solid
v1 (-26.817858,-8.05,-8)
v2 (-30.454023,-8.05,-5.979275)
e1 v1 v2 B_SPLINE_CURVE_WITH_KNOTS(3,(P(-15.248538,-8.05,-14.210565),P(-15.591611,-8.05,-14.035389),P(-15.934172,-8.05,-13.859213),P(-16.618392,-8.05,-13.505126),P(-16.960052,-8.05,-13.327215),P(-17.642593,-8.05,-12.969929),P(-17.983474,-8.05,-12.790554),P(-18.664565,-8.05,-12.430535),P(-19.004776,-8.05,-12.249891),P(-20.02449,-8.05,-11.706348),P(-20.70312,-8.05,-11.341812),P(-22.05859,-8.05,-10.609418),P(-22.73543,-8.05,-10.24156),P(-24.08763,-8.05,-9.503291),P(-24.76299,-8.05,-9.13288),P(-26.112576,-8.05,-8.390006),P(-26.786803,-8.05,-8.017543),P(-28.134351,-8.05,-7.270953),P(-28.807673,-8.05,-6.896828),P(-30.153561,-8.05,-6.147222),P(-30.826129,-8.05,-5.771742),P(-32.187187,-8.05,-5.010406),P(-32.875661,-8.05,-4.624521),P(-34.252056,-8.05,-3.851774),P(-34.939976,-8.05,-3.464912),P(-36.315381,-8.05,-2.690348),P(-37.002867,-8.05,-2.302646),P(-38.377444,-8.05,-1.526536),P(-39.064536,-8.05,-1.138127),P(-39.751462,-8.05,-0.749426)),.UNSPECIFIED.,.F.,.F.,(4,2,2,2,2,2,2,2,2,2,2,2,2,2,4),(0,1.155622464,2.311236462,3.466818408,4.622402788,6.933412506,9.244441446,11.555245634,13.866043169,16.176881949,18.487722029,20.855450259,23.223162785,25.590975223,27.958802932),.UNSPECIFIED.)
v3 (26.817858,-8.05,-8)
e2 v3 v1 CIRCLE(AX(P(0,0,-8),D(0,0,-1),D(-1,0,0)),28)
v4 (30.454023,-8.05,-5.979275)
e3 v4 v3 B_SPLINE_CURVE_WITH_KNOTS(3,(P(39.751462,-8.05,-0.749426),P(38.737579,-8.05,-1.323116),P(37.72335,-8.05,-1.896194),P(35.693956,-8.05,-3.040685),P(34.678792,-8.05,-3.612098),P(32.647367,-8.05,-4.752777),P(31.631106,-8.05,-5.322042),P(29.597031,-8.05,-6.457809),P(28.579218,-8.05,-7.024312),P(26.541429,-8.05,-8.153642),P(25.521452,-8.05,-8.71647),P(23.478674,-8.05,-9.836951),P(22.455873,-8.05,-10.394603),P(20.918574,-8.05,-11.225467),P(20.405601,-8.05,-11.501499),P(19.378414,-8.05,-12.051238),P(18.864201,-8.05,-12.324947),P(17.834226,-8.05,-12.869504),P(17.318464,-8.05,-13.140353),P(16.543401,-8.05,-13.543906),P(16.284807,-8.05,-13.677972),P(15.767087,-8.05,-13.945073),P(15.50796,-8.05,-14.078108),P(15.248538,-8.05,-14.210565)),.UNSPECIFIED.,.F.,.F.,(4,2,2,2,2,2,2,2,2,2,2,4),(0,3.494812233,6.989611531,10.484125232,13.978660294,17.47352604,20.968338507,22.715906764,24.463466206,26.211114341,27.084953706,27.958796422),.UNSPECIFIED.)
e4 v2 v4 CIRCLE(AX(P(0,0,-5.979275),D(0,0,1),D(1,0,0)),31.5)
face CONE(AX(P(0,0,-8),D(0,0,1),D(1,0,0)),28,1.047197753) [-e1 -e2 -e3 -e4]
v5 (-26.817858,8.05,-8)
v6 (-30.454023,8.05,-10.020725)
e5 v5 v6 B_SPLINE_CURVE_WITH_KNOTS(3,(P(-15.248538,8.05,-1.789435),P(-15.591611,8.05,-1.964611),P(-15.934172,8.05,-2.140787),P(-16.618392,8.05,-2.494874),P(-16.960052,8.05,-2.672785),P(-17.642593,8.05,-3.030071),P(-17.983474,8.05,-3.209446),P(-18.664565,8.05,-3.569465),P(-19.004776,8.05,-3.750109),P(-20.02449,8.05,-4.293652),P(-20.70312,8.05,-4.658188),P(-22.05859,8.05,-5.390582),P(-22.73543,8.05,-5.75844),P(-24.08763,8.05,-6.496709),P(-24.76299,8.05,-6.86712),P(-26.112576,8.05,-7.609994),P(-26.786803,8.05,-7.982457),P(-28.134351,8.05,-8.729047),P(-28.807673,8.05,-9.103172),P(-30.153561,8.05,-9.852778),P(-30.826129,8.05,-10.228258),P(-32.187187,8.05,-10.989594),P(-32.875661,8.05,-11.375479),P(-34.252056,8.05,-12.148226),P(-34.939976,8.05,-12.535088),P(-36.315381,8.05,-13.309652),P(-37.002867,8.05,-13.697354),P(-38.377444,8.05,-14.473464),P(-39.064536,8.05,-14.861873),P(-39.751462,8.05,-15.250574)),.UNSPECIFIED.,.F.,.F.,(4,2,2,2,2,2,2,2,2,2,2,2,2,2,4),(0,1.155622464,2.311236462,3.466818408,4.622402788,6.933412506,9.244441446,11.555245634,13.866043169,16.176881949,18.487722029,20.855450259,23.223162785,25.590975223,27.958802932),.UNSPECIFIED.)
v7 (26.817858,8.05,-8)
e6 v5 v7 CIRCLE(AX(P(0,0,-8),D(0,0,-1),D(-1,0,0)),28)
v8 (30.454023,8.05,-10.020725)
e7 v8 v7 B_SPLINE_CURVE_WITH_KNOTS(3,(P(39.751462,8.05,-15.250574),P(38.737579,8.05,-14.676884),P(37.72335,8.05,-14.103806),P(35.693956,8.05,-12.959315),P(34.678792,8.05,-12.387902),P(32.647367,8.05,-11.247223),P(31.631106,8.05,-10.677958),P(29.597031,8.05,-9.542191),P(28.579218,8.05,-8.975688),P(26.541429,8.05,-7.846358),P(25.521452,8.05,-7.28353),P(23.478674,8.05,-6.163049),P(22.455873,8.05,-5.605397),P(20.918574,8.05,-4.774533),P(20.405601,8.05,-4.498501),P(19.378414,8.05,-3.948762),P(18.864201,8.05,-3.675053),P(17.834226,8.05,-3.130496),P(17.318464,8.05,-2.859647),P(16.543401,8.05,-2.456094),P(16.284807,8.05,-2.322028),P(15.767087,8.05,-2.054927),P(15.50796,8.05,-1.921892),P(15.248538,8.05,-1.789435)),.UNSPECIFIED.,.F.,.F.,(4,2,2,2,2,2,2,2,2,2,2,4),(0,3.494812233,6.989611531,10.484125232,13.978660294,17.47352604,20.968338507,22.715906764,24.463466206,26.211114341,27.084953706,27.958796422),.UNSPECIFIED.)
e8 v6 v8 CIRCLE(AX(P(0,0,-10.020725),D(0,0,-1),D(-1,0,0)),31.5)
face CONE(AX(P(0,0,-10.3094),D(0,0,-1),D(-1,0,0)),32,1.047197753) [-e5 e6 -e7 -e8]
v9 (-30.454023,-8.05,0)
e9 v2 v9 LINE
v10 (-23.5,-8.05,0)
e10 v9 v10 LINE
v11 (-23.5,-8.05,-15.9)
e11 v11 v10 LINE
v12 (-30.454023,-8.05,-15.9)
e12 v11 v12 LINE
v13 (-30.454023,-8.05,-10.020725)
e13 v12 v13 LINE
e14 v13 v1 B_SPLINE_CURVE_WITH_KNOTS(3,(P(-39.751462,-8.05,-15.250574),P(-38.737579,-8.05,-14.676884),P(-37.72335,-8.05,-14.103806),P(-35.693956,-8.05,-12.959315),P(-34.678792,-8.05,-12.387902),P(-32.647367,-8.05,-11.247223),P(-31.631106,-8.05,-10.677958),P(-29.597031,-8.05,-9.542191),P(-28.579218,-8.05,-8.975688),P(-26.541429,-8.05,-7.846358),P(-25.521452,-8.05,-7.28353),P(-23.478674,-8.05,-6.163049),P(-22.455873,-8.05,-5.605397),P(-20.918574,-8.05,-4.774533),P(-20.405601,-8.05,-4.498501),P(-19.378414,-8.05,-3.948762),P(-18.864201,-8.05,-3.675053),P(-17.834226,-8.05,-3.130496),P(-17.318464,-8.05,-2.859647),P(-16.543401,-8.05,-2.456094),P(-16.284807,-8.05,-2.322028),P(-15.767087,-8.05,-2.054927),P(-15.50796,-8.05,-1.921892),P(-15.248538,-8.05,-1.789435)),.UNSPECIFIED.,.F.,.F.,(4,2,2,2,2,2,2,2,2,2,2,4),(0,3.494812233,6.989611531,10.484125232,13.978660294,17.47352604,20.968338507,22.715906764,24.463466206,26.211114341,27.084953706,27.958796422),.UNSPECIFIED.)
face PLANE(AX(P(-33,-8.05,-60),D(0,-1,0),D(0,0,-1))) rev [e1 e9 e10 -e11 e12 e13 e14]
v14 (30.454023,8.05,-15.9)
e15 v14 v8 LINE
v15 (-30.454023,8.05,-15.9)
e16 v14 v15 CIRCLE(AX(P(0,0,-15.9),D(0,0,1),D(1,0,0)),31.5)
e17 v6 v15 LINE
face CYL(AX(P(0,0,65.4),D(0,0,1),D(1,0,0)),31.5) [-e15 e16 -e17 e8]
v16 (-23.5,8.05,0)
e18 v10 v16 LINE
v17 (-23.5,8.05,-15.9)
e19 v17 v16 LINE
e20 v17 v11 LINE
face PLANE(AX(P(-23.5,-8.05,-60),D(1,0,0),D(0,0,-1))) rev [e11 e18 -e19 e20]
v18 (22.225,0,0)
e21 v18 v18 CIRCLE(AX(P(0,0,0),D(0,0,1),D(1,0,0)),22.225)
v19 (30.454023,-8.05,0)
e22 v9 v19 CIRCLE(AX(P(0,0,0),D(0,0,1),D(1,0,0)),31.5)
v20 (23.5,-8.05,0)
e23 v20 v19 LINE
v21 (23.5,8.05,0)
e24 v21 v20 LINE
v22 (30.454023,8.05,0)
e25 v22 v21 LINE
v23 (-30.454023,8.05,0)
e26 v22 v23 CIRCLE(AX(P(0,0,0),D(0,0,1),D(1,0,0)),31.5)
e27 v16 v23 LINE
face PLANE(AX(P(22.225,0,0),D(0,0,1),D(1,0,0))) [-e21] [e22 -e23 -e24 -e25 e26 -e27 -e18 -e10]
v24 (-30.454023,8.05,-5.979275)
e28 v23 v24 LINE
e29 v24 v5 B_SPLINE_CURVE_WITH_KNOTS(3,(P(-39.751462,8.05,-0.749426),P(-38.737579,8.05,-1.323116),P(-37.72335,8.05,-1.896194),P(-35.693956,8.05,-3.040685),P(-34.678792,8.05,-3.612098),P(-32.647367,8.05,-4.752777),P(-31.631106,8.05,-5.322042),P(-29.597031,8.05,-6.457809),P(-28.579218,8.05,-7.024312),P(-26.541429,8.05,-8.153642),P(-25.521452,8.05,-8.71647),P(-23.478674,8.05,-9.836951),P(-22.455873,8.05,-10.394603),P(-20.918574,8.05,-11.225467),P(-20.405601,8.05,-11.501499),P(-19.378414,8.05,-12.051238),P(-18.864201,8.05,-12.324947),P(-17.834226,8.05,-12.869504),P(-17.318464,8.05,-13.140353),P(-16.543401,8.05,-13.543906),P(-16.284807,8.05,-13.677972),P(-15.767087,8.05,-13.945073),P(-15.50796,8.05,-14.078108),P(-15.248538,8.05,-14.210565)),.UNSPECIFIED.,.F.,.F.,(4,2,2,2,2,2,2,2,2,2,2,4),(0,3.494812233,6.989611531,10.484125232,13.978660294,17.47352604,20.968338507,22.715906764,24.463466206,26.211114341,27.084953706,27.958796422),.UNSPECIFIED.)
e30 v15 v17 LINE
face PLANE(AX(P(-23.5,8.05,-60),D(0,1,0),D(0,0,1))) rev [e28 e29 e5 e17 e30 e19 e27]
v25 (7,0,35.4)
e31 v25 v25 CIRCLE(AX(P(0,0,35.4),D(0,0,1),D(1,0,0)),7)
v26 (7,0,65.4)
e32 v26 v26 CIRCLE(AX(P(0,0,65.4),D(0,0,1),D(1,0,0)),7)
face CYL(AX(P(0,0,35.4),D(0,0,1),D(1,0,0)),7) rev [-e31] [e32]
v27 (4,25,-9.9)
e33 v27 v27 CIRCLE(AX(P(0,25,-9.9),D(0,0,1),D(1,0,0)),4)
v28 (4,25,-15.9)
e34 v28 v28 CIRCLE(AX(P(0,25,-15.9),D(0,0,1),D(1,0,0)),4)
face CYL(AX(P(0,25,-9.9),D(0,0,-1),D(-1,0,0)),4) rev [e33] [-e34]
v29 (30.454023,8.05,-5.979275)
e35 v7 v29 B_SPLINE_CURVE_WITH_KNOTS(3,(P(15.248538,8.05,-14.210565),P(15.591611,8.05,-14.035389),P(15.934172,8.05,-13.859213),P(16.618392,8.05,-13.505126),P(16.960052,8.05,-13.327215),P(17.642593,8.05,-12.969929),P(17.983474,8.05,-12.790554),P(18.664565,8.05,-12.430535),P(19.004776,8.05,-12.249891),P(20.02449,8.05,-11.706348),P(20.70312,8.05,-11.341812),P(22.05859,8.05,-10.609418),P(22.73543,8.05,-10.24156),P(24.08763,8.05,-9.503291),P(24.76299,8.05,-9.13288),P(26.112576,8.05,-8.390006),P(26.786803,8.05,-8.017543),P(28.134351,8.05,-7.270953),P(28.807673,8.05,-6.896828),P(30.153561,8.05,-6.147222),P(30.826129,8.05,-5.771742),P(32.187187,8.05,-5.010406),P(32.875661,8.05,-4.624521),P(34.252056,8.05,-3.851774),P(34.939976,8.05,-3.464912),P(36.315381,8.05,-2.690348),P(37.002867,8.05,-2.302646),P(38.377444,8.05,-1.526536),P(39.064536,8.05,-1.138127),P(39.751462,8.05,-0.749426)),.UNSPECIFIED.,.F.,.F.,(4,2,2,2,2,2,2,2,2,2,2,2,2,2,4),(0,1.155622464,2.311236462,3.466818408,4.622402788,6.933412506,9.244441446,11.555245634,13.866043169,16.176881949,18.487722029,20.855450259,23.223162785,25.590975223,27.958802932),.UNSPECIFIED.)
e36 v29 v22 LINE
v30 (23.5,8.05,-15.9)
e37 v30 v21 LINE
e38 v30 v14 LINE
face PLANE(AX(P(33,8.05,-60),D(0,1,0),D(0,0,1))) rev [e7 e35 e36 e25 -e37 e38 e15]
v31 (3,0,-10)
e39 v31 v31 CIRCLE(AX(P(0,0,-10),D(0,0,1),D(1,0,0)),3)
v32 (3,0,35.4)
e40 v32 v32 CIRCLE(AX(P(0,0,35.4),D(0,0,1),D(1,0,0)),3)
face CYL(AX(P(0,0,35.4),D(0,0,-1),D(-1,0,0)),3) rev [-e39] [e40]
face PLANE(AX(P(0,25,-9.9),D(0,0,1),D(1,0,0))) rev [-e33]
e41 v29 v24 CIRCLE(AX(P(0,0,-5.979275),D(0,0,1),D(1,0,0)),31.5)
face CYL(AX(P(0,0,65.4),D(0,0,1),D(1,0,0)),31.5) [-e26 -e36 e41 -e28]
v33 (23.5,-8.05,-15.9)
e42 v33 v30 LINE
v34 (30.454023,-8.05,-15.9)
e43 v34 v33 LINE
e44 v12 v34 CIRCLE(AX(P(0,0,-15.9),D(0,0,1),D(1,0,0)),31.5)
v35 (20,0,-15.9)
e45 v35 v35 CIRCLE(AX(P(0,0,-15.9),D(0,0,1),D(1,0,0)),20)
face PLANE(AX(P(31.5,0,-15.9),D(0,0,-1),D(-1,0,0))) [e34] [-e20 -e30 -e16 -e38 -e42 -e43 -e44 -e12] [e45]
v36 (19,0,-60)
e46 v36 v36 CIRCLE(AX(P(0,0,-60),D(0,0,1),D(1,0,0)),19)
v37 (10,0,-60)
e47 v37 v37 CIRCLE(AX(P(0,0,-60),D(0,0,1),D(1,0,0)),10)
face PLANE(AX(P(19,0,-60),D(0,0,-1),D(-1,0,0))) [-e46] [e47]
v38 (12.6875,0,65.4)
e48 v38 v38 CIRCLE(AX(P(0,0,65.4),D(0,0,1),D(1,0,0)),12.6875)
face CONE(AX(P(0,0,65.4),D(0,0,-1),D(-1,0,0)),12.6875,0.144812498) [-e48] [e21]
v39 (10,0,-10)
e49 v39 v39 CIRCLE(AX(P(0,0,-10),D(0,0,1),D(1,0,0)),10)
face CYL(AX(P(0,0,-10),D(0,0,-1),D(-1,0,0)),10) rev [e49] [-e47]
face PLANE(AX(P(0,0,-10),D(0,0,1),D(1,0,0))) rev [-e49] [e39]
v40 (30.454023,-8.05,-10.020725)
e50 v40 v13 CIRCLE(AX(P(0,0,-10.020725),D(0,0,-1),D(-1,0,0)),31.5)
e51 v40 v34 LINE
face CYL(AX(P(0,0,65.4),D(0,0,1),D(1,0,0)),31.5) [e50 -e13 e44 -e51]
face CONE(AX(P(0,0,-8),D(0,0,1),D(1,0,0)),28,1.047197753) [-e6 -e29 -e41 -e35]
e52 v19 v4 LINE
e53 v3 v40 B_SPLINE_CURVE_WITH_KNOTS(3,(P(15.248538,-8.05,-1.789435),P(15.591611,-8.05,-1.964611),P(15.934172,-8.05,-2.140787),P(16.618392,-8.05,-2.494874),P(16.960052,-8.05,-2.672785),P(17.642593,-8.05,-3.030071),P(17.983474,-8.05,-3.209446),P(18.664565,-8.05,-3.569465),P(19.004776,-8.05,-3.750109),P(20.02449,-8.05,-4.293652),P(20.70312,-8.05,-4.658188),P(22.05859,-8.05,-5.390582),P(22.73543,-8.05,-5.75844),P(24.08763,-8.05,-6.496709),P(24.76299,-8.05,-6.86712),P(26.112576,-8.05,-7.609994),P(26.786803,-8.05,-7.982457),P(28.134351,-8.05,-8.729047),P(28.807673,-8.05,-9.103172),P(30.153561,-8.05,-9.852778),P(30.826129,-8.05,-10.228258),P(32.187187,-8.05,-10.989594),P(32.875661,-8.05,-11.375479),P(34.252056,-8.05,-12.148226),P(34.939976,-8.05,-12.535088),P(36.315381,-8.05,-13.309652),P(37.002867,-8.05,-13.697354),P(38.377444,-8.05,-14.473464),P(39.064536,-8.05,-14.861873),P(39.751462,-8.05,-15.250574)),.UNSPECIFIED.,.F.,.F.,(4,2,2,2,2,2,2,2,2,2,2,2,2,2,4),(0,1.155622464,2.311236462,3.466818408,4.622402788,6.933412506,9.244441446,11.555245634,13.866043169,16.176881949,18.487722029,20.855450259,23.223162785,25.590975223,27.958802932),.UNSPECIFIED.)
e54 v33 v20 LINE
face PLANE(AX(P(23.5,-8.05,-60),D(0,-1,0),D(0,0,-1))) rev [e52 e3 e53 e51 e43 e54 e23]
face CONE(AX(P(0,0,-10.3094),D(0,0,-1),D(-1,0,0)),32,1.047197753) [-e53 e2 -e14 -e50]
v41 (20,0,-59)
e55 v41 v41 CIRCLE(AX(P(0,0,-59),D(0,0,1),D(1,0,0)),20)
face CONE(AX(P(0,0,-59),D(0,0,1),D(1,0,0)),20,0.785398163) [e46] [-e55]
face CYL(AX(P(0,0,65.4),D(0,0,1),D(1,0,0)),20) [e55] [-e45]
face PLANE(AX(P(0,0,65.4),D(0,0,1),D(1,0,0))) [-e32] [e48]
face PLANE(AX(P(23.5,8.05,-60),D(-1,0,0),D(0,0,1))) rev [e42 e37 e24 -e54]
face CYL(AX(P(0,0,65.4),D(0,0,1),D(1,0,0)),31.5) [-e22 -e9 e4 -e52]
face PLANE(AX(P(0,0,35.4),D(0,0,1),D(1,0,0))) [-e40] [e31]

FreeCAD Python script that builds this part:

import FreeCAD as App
import Part
import Sketcher

V = App.Vector
Q = App.Units.Quantity

doc = App.newDocument("Part")
body = doc.addObject("PartDesign::Body", "Body")

# Sketch on XZ plane
sketch1 = body.newObject("Sketcher::SketchObject", "Sketch")
sketch1.AttachmentSupport = (doc.getObject("XZ_Plane"), [""])
sketch1.MapMode = "FlatFace"
sketch1.addGeometry([
    Part.LineSegment(V(0, 65.4, 0), V(12.7, 65.4, 0)),  # 0
    Part.LineSegment(V(12.7, 65.4, 0), V(22.2, 0, 0)),  # 1
    Part.LineSegment(V(22.2, 0, 0), V(31.5, 0, 0)),  # 2
    Part.LineSegment(V(31.5, 0, 0), V(31.5, -15.9, 0)),  # 3
    Part.LineSegment(V(31.5, -15.9, 0), V(20, -15.9, 0)),  # 4
    Part.LineSegment(V(20, -15.9, 0), V(20, -59, 0)),  # 5
    Part.LineSegment(V(20, -59, 0), V(19, -60, 0)),  # 6
    Part.LineSegment(V(19, -60, 0), V(0, -60, 0)),  # 7
    Part.LineSegment(V(0, -60, 0), V(0, 65.4, 0)),  # 8
], False)
sketch1.addConstraint([
    Sketcher.Constraint("Coincident", 0, 2, 1, 1),
    Sketcher.Constraint("Coincident", 1, 2, 2, 1),
    Sketcher.Constraint("Coincident", 2, 2, 3, 1),
    Sketcher.Constraint("Coincident", 3, 2, 4, 1),
    Sketcher.Constraint("Coincident", 4, 2, 5, 1),
    Sketcher.Constraint("Coincident", 5, 2, 6, 1),
    Sketcher.Constraint("Coincident", 6, 2, 7, 1),
    Sketcher.Constraint("Coincident", 7, 2, 8, 1),
    Sketcher.Constraint("Coincident", 8, 2, 0, 1),
    Sketcher.Constraint("Horizontal", 0),
    Sketcher.Constraint("Horizontal", 2),
    Sketcher.Constraint("Vertical", 3),
    Sketcher.Constraint("Horizontal", 4),
    Sketcher.Constraint("Vertical", 5),
    Sketcher.Constraint("Horizontal", 7),
    Sketcher.Constraint("Vertical", 8),
    Sketcher.Constraint("PointOnObject", 1, 2, -1),
    Sketcher.Constraint("PointOnObject", 7, 2, -2),
    Sketcher.Constraint("DistanceX", 7, 2, 7, 1, 19.0),
    Sketcher.Constraint("Angle", 6, Q("-135 deg")),
    Sketcher.Constraint("DistanceX", 4, 2, 4, 1, 11.5),
    Sketcher.Constraint("DistanceY", 3, 2, 3, 1, 15.9),
    Sketcher.Constraint("DistanceY", 5, 2, 5, 1, 43.1),
    Sketcher.Constraint("DistanceY", 8, 1, 8, 2, 125.4),
    Sketcher.Constraint("DistanceX", -1, 1, 4, 2, 20.0),
    Sketcher.Constraint("DistanceX", 2, 1, 2, 2, 9.275),
    Sketcher.Constraint("DistanceX", 0, 1, 0, 2, 12.6875),
])
revolution = body.newObject("PartDesign::Revolution", "Revolution")
revolution.Profile = sketch1
revolution.ReferenceAxis = (sketch1, ["V_Axis"])
revolution.Angle = 360

# Sketch on XZ plane
sketch2 = body.newObject("Sketcher::SketchObject", "Sketch001")
sketch2.AttachmentSupport = (doc.getObject("XZ_Plane"), [""])
sketch2.MapMode = "FlatFace"
sketch2.addGeometry([
    Part.LineSegment(V(28, -8, 0), V(32, -5.7, 0)),
    Part.LineSegment(V(32, -5.7, 0), V(32, -10.3, 0)),
    Part.LineSegment(V(32, -10.3, 0), V(28, -8, 0)),
], False)
sketch2.addConstraint([
    Sketcher.Constraint("Coincident", 0, 2, 1, 1),
    Sketcher.Constraint("Coincident", 1, 2, 2, 1),
    Sketcher.Constraint("Coincident", 2, 2, 0, 1),
    Sketcher.Constraint("Vertical", 1),
    Sketcher.Constraint("Equal", 0, 2),
    Sketcher.Constraint("Angle", 0, Q("29.999988 deg")),
    Sketcher.Constraint("DistanceX", -1, 1, 0, 2, 32.0),
    Sketcher.Constraint("DistanceX", -1, 1, 2, 2, 28.0),
    Sketcher.Constraint("DistanceY", 2, 2, -1, 1, 8.0),
])
groove = body.newObject("PartDesign::Groove", "Groove")
groove.Profile = sketch2
groove.ReferenceAxis = (sketch2, ["V_Axis"])
groove.Angle = 360

# Sketch on XY plane
sketch3 = body.newObject("Sketcher::SketchObject", "Sketch002")
sketch3.AttachmentSupport = (doc.getObject("XY_Plane"), [""])
sketch3.MapMode = "FlatFace"
sketch3.addGeometry([
    Part.LineSegment(V(24, 8, 0), V(24, -8, 0)),  # 0
    Part.LineSegment(V(24, -8, 0), V(33, -8, 0)),  # 1
    Part.LineSegment(V(33, -8, 0), V(33, 8, 0)),  # 2
    Part.LineSegment(V(33, 8, 0), V(24, 8, 0)),  # 3
    Part.LineSegment(V(-33, 8, 0), V(-33, -8, 0)),  # 4
    Part.LineSegment(V(-33, -8, 0), V(-24, -8, 0)),  # 5
    Part.LineSegment(V(-24, -8, 0), V(-24, 8, 0)),  # 6
    Part.LineSegment(V(-24, 8, 0), V(-33, 8, 0)),  # 7
], False)
sketch3.addConstraint([
    Sketcher.Constraint("Coincident", 0, 2, 1, 1),
    Sketcher.Constraint("Coincident", 1, 2, 2, 1),
    Sketcher.Constraint("Coincident", 2, 2, 3, 1),
    Sketcher.Constraint("Coincident", 3, 2, 0, 1),
    Sketcher.Constraint("Coincident", 4, 2, 5, 1),
    Sketcher.Constraint("Coincident", 5, 2, 6, 1),
    Sketcher.Constraint("Coincident", 6, 2, 7, 1),
    Sketcher.Constraint("Coincident", 7, 2, 4, 1),
    Sketcher.Constraint("Vertical", 0),
    Sketcher.Constraint("Horizontal", 1),
    Sketcher.Constraint("Vertical", 2),
    Sketcher.Constraint("Horizontal", 3),
    Sketcher.Constraint("Vertical", 4),
    Sketcher.Constraint("Horizontal", 5),
    Sketcher.Constraint("Vertical", 6),
    Sketcher.Constraint("Horizontal", 7),
    Sketcher.Constraint("Symmetric", 2, 2, 4, 2, -1, 1),
    Sketcher.Constraint("Symmetric", 0, 2, 6, 2, -1, 1),
    Sketcher.Constraint("Horizontal", 1, 2, 4, 2),
    Sketcher.Constraint("DistanceX", 1, 1, 1, 2, 9.5),
    Sketcher.Constraint("DistanceY", 0, 2, 0, 1, 16.1),
    Sketcher.Constraint("DistanceX", -1, 1, 1, 2, 33.0),
])
pocket1 = body.newObject("PartDesign::Pocket", "Pocket")
pocket1.Profile = sketch3
pocket1.Type = "ThroughAll"

# Sketch on XY plane
sketch4 = body.newObject("Sketcher::SketchObject", "Sketch003")
sketch4.AttachmentSupport = (doc.getObject("XY_Plane"), [""])
sketch4.MapMode = "FlatFace"
sketch4.AttachmentOffset = App.Placement(V(0, 0, -15.9), App.Rotation())
sketch4.addGeometry(Part.Circle(V(0, 25, 0), V(0, 0, 1), 4), False)
sketch4.addConstraint([
    Sketcher.Constraint("PointOnObject", 0, 3, -2),
    Sketcher.Constraint("Diameter", 0, 8.0),
    Sketcher.Constraint("DistanceY", -1, 1, 0, 3, 25.0),
])
pocket2 = body.newObject("PartDesign::Pocket", "Pocket001")
pocket2.Profile = sketch4
pocket2.Length = 6
pocket2.Reversed = True

# Sketch on XY plane
sketch5 = body.newObject("Sketcher::SketchObject", "Sketch004")
sketch5.AttachmentSupport = (doc.getObject("XY_Plane"), [""])
sketch5.MapMode = "FlatFace"
sketch5.AttachmentOffset = App.Placement(V(0, 0, -60), App.Rotation())
sketch5.addGeometry(Part.Circle(V(0, 0, 0), V(0, 0, 1), 10), False)
sketch5.addConstraint([
    Sketcher.Constraint("Coincident", 0, 3, -1, 1),
    Sketcher.Constraint("Diameter", 0, 20.0),
])
pocket3 = body.newObject("PartDesign::Pocket", "Pocket002")
pocket3.Profile = sketch5
pocket3.Length = 50
pocket3.Reversed = True

# Sketch on XY plane
sketch6 = body.newObject("Sketcher::SketchObject", "Sketch005")
sketch6.AttachmentSupport = (doc.getObject("XY_Plane"), [""])
sketch6.MapMode = "FlatFace"
sketch6.AttachmentOffset = App.Placement(V(0, 0, 65.4), App.Rotation())
sketch6.addGeometry(Part.Circle(V(0, 0, 0), V(0, 0, 1), 7), False)
sketch6.addConstraint([
    Sketcher.Constraint("Coincident", 0, 3, -1, 1),
    Sketcher.Constraint("Diameter", 0, 14.0),
])
pocket4 = body.newObject("PartDesign::Pocket", "Pocket003")
pocket4.Profile = sketch6
pocket4.Length = 30

# Sketch on XY plane
sketch7 = body.newObject("Sketcher::SketchObject", "Sketch006")
sketch7.AttachmentSupport = (doc.getObject("XY_Plane"), [""])
sketch7.MapMode = "FlatFace"
sketch7.AttachmentOffset = App.Placement(V(0, 0, -10), App.Rotation())
sketch7.addGeometry(Part.Circle(V(0, 0, 0), V(0, 0, 1), 3), False)
sketch7.addConstraint([
    Sketcher.Constraint("Coincident", 0, 3, -1, 1),
    Sketcher.Constraint("Diameter", 0, 6.0),
])
pocket5 = body.newObject("PartDesign::Pocket", "Pocket004")
pocket5.Profile = sketch7
pocket5.Length = 45.4
pocket5.Reversed = True

doc.recompute()
